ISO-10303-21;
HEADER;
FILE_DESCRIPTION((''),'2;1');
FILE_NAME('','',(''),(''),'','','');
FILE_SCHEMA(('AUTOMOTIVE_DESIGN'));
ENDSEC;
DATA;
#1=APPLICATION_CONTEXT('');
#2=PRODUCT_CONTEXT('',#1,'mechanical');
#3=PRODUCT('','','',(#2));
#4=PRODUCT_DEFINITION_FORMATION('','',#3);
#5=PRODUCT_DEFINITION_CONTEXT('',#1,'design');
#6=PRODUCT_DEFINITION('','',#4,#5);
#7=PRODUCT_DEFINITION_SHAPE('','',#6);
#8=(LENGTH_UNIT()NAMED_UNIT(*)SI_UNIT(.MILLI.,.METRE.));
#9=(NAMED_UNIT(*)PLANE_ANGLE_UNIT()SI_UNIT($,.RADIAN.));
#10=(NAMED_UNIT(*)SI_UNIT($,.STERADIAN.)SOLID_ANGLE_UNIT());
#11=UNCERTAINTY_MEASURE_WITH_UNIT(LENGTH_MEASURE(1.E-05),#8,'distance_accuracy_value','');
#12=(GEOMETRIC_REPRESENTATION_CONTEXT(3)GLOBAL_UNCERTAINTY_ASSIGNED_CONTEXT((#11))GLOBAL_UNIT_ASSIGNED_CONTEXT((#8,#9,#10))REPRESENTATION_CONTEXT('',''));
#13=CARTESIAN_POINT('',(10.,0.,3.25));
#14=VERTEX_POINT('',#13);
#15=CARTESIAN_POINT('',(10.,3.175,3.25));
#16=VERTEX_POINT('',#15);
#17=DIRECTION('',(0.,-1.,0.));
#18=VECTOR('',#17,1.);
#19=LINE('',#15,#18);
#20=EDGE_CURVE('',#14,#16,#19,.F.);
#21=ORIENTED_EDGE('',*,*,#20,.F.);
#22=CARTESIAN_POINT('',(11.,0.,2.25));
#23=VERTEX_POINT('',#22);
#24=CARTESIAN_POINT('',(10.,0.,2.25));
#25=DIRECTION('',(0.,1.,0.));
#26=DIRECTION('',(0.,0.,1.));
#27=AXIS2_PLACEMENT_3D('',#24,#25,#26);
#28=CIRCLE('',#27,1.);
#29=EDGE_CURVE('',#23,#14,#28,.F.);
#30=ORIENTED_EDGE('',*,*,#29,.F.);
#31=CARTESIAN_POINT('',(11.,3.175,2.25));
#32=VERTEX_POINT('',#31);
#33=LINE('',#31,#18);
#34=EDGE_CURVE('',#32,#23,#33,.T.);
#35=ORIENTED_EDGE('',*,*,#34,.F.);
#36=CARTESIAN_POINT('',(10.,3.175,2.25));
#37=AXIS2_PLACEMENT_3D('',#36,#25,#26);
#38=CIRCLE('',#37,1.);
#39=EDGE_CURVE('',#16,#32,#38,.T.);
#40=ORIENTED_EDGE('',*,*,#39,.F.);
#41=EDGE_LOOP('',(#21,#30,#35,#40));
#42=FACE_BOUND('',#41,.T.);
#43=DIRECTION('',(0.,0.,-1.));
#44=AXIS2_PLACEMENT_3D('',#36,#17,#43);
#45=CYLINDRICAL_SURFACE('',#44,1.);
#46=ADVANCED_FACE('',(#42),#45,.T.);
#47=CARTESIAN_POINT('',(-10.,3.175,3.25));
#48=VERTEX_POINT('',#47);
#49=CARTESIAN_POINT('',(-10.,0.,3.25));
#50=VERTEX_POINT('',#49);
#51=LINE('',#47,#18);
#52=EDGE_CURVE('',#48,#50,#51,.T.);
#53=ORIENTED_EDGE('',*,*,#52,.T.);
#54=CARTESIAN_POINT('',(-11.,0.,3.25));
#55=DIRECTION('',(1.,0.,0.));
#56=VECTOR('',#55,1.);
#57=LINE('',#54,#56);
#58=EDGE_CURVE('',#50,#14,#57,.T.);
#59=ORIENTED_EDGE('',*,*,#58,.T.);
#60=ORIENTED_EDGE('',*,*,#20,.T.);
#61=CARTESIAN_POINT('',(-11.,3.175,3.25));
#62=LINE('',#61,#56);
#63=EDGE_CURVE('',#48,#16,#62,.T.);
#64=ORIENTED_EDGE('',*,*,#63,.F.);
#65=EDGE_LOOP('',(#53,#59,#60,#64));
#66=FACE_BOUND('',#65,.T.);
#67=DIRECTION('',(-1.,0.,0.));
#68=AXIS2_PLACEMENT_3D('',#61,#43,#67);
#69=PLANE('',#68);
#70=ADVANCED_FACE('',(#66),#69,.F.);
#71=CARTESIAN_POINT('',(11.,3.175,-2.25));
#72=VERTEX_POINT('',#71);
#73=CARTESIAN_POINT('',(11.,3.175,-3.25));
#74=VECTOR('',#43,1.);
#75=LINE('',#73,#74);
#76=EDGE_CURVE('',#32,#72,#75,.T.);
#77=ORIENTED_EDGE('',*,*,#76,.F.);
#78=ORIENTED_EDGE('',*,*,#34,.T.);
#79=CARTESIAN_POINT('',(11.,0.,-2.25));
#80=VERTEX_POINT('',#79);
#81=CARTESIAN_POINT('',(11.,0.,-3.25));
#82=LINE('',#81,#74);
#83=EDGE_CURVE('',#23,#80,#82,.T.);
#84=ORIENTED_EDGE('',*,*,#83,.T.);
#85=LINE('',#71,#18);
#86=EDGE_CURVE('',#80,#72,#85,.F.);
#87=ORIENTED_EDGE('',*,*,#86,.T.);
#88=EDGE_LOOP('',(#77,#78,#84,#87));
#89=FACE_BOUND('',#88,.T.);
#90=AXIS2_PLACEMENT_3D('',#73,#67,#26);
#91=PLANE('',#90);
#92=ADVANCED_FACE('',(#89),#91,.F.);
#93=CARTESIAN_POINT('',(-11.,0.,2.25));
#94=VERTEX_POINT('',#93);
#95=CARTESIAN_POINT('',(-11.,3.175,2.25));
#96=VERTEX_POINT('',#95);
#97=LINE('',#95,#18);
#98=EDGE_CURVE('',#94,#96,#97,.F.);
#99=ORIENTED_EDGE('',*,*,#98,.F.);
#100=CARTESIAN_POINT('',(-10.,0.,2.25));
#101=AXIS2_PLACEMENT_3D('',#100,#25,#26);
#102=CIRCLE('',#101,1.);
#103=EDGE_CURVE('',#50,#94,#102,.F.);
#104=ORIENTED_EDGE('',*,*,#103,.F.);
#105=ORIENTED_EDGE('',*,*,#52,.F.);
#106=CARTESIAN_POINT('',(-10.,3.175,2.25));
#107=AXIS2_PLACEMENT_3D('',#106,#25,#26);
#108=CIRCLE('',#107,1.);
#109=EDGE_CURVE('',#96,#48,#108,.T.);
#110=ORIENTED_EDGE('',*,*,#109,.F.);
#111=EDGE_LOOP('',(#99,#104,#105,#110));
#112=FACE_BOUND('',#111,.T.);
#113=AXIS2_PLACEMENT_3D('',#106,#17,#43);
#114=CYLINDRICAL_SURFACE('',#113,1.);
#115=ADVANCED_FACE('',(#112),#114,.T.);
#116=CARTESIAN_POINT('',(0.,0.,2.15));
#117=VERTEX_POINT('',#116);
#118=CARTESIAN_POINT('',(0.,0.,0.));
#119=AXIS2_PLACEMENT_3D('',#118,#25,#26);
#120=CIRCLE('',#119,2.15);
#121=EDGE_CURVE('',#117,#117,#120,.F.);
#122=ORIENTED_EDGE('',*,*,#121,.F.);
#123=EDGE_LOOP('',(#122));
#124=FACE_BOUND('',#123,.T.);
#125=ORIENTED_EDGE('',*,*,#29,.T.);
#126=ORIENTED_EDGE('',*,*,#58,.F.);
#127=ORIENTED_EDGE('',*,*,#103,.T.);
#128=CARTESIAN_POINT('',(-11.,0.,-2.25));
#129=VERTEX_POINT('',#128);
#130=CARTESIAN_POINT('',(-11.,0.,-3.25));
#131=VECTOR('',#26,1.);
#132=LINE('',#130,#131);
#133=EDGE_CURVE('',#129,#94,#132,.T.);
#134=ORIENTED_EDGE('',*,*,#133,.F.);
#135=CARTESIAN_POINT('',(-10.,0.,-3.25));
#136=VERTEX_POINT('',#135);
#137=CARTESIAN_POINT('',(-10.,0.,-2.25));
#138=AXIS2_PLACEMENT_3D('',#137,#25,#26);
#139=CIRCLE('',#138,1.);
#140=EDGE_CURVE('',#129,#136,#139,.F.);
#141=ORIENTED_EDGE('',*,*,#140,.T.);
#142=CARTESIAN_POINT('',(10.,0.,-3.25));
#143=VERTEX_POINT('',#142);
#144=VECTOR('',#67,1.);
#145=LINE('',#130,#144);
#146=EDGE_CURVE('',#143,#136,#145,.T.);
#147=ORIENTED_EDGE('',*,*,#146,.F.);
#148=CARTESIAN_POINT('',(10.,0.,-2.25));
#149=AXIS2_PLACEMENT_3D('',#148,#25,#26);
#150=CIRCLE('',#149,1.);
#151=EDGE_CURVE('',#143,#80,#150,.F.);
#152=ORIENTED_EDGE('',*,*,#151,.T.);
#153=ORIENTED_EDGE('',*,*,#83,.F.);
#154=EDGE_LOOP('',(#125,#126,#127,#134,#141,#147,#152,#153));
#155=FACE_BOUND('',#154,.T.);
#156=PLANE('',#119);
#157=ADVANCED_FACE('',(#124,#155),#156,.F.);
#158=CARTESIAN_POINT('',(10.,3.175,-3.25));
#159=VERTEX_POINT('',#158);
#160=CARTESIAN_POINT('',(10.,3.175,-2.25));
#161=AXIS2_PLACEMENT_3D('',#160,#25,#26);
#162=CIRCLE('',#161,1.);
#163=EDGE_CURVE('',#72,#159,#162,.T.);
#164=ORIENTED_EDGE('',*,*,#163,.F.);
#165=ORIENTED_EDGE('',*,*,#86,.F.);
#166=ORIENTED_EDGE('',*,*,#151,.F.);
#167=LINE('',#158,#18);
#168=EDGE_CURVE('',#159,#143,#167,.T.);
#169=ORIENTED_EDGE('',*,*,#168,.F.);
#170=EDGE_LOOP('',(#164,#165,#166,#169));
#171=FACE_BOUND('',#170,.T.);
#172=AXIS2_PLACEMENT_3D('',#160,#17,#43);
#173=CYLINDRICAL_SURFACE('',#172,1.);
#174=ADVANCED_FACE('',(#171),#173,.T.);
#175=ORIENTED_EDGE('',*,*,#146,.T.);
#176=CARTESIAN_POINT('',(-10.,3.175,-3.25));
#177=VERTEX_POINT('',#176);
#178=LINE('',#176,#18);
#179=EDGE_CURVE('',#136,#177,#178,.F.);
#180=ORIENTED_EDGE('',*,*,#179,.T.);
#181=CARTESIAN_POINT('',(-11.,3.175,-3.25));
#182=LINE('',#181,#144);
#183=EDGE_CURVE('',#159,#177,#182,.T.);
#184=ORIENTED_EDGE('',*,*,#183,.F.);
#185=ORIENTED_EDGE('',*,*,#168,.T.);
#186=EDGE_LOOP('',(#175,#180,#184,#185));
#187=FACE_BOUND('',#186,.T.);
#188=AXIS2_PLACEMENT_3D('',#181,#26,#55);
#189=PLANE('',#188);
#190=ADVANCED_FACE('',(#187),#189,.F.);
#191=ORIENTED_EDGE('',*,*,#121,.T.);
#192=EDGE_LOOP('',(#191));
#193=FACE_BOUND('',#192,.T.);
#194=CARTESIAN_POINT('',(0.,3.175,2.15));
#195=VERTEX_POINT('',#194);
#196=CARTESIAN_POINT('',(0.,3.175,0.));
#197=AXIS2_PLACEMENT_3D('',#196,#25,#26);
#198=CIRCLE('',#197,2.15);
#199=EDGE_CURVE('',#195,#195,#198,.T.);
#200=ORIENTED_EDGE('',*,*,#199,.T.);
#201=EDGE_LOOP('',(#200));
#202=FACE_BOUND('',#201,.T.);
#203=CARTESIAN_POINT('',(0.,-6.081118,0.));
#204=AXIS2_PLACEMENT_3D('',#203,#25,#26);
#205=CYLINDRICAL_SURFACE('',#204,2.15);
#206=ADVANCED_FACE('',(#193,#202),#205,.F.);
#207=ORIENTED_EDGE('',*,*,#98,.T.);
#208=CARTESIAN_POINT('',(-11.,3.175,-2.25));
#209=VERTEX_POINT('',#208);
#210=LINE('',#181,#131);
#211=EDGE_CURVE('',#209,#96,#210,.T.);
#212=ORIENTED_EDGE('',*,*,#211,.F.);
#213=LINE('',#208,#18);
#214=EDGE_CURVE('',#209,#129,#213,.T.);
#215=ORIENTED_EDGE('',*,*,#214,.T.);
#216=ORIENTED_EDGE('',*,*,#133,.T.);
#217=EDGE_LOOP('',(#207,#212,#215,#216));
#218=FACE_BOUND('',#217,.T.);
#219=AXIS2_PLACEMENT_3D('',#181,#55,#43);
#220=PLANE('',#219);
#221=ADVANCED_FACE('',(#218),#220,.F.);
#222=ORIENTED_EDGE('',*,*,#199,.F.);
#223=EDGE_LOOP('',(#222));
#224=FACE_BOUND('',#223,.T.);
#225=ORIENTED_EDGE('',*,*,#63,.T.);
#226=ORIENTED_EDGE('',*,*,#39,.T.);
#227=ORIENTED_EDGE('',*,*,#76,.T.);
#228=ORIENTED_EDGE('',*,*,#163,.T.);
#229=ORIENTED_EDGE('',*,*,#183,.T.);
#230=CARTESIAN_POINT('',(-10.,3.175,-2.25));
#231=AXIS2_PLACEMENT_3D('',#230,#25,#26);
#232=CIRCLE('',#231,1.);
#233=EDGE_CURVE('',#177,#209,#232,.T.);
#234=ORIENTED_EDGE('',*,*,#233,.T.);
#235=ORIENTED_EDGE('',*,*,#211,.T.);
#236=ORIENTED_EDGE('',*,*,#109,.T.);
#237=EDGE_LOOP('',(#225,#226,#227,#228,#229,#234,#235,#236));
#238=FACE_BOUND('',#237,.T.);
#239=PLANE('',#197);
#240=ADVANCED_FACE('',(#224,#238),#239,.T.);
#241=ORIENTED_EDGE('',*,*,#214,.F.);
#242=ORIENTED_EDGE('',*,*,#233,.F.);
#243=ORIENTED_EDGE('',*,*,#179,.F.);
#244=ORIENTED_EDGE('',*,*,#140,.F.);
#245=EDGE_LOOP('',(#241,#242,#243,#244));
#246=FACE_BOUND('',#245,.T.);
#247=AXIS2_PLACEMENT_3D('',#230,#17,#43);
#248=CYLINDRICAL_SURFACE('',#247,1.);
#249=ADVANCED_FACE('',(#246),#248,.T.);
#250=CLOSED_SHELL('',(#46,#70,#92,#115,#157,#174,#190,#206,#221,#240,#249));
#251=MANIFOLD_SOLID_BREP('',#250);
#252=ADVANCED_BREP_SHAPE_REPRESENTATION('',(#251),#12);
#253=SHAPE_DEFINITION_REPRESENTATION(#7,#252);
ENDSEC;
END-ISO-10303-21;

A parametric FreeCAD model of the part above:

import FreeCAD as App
import Part
import Sketcher

V = App.Vector


def edges_at(feature, points):
    """Names of the edges that pass closest to the given points."""
    edges = feature.Shape.Edges
    near = lambda p: min(range(len(edges)), key=lambda i: edges[i].distToShape(Part.Vertex(*p))[0])
    return sorted({f"Edge{near(p) + 1}" for p in points})


def add_polygon(sketch, points):
    """Adds a closed chain of lines whose ends are joined by coincident constraints."""
    first, n = sketch.GeometryCount, len(points)
    for a, b in zip(points, points[1:] + points[:1]):
        sketch.addGeometry(Part.LineSegment(App.Vector(*a, 0), App.Vector(*b, 0)), False)
    for i in range(n):
        sketch.addConstraint(Sketcher.Constraint("Coincident", first + i, 2, first + (i + 1) % n, 1))

doc = App.newDocument("Part")
body = doc.addObject("PartDesign::Body", "Body")

sketch1 = body.newObject("Sketcher::SketchObject", "Sketch")
sketch1.AttachmentSupport = (doc.getObject("XZ_Plane"), [""])
sketch1.MapMode = "FlatFace"
add_polygon(sketch1, [(-11, -3.25), (-11, 3.25), (11, 3.25), (11, -3.25)])
sketch1.addConstraint([
    Sketcher.Constraint("Vertical", 0),
    Sketcher.Constraint("Horizontal", 1),
    Sketcher.Constraint("Vertical", 2),
    Sketcher.Constraint("Horizontal", 3),
    Sketcher.Constraint("Symmetric", 0, 2, 2, 2, -1, 1),
    Sketcher.Constraint("DistanceX", 1, 1, 1, 2, 22.0),
    Sketcher.Constraint("DistanceY", 0, 1, 0, 2, 6.5),
])
pad1 = body.newObject("PartDesign::Pad", "Pad")
pad1.Profile = sketch1
pad1.Length = 3.175
pad1.Reversed = True

sketch2 = body.newObject("Sketcher::SketchObject", "Sketch001")
sketch2.AttachmentSupport = (doc.getObject("XZ_Plane"), [""])
sketch2.MapMode = "FlatFace"
sketch2.AttachmentOffset = App.Placement(V(0, 0, -3.175), App.Rotation())
sketch2.addGeometry(Part.Circle(V(0, 0, 0), V(0, 0, 1), 2.15), False)
sketch2.addConstraint([
    Sketcher.Constraint("Coincident", 0, 3, -1, 1),
    Sketcher.Constraint("Diameter", 0, 4.3),
])
pocket1 = body.newObject("PartDesign::Pocket", "Pocket")
pocket1.Profile = sketch2
pocket1.Length = 3.175
pocket1.Reversed = True
doc.recompute()

fillet = body.newObject("PartDesign::Fillet", "Fillet")
fillet.Base = (pocket1, edges_at(pocket1, [
    (11, 1.587, 3.25),
    (-11, 1.587, 3.25),
    (-11, 1.587, -3.25),
    (11, 1.587, -3.25),
]))
fillet.Radius = 1

doc.recompute()
